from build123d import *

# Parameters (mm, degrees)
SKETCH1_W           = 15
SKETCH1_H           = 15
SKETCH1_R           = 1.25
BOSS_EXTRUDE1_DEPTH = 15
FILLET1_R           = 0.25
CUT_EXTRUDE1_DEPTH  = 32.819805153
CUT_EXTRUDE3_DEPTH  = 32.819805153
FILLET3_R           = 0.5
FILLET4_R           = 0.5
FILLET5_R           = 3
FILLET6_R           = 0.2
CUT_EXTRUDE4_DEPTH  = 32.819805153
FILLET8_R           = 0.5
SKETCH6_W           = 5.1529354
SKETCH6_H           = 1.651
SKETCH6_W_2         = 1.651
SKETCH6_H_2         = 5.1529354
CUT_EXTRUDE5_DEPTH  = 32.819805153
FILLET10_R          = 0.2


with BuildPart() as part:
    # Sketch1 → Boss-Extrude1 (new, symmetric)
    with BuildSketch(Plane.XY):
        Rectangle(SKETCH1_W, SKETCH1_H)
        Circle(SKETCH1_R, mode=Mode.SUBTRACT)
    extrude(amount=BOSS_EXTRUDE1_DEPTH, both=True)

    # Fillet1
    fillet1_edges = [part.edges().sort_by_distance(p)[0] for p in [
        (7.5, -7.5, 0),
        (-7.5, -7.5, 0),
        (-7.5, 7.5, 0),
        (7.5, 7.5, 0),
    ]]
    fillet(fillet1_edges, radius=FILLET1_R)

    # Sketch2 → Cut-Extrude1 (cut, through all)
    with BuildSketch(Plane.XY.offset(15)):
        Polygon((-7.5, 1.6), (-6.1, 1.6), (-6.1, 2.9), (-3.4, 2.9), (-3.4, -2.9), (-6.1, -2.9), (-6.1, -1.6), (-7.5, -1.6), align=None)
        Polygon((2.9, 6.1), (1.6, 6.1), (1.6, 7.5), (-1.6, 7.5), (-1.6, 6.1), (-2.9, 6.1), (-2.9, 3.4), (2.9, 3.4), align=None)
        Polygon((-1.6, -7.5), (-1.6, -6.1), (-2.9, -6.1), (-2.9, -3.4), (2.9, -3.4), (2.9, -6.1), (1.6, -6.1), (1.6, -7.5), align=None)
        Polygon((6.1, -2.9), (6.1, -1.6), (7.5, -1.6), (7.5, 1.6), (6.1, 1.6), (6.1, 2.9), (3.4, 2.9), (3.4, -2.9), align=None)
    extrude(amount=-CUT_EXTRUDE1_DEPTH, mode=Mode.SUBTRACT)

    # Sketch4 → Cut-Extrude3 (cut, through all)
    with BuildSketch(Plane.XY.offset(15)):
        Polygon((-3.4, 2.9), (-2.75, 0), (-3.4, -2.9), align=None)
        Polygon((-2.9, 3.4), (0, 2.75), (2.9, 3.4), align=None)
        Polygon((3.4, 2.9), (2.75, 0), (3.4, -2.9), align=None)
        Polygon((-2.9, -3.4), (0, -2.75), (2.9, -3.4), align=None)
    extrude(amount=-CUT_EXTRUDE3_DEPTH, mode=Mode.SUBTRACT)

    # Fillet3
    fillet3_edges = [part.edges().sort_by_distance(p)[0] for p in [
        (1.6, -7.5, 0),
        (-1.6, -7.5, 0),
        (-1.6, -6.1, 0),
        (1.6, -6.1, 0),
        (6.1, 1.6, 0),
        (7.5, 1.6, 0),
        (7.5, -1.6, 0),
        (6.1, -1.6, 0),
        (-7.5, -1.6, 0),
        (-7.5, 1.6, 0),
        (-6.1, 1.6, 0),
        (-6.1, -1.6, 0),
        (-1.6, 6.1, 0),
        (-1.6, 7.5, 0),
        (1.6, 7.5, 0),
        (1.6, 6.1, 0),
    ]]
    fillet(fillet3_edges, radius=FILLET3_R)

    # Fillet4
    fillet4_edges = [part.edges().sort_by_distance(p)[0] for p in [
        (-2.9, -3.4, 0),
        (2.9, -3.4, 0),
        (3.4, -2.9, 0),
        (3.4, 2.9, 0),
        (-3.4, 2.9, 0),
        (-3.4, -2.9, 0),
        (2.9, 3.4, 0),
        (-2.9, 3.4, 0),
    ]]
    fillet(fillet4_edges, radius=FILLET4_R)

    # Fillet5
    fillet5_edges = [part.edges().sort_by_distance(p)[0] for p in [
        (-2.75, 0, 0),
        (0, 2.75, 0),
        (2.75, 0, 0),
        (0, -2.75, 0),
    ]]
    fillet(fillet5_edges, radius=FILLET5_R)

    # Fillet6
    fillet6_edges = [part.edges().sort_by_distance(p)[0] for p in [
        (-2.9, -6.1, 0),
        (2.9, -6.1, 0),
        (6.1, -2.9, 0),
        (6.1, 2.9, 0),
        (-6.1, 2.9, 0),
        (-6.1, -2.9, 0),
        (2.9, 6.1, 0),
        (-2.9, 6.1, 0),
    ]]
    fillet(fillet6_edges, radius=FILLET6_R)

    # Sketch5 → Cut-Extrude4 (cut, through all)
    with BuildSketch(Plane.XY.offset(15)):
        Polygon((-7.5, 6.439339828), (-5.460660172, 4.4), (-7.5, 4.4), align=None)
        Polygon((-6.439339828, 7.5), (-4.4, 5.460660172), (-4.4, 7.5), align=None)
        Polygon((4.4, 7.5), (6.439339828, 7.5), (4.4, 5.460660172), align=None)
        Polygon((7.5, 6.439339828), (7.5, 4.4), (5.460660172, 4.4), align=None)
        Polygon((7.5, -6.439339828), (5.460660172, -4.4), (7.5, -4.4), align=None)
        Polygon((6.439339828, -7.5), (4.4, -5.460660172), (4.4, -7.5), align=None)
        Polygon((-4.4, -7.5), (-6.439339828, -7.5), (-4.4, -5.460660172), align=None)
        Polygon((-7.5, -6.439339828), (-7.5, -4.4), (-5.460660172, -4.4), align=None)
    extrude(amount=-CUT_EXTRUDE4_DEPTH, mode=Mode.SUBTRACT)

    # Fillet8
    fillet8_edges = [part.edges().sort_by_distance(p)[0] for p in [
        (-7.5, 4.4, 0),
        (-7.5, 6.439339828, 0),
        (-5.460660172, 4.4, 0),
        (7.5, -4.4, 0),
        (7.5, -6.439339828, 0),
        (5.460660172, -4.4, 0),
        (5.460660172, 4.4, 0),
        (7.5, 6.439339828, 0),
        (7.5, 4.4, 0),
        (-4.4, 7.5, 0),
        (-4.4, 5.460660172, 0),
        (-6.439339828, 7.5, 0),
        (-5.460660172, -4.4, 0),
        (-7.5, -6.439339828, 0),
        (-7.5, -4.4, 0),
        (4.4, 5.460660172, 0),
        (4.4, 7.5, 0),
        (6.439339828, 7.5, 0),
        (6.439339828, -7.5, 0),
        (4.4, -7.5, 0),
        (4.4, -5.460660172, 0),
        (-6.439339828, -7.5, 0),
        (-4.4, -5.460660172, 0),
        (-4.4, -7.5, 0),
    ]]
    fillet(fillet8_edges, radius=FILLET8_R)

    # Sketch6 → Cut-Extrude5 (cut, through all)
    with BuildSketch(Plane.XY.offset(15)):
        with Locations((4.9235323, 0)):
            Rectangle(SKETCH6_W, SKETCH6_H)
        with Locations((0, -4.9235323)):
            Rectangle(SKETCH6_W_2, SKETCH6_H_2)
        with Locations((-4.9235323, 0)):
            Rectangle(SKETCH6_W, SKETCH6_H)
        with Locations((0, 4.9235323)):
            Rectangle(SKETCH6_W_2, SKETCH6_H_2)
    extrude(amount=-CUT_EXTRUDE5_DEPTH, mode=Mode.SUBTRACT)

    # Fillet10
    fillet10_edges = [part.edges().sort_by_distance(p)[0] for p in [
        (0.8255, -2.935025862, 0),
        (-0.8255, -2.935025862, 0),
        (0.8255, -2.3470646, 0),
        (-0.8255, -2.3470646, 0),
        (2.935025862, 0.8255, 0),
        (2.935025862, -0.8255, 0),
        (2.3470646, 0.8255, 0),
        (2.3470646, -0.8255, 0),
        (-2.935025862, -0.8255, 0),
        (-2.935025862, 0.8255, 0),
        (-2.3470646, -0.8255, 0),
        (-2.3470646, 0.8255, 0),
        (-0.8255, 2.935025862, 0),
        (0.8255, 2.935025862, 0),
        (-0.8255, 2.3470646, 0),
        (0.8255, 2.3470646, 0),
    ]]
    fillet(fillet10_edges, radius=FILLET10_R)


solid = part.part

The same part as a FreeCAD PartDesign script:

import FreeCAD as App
import Part
import Sketcher


def edges_at(feature, points):
    """Names of the edges that pass closest to the given points."""
    edges = feature.Shape.Edges
    near = lambda p: min(range(len(edges)), key=lambda i: edges[i].distToShape(Part.Vertex(*p))[0])
    return sorted({f"Edge{near(p) + 1}" for p in points})


def add_polygon(sketch, points):
    """Adds a closed chain of lines whose ends are joined by coincident constraints."""
    first, n = sketch.GeometryCount, len(points)
    for a, b in zip(points, points[1:] + points[:1]):
        sketch.addGeometry(Part.LineSegment(App.Vector(*a, 0), App.Vector(*b, 0)), False)
    for i in range(n):
        sketch.addConstraint(Sketcher.Constraint("Coincident", first + i, 2, first + (i + 1) % n, 1))

doc = App.newDocument("Part")
body = doc.addObject("PartDesign::Body", "Body")

# Sketch on XY plane
sketch1 = doc.addObject("Sketcher::SketchObject", "Sketch")
body.addObject(sketch1)
sketch1.AttachmentSupport = (doc.XY_Plane, [""])
sketch1.MapMode = "FlatFace"
add_polygon(sketch1, [(-7.5, 7.5), (-7.5, -7.5), (7.5, -7.5), (7.5, 7.5)])  # lines 0-3
sketch1.addGeometry(Part.Circle(App.Vector(0, 0, 0), App.Vector(0, 0, 1), 1.2), False)  # 4
sketch1.addConstraint([
    Sketcher.Constraint("Vertical", 0),
    Sketcher.Constraint("Horizontal", 1),
    Sketcher.Constraint("Vertical", 2),
    Sketcher.Constraint("Horizontal", 3),
    Sketcher.Constraint("Coincident", 4, 3, -1, 1),
    Sketcher.Constraint("Symmetric", 0, 2, 2, 2, -1, 1),
    Sketcher.Constraint("Equal", 3, 0),
    Sketcher.Constraint("Diameter", 4, 2.5),
    Sketcher.Constraint("DistanceX", 1, 1, 1, 2, 15.0),
])
pad1 = doc.addObject("PartDesign::Pad", "Pad")
body.addObject(pad1)
pad1.Profile = sketch1
pad1.Length = 30
pad1.Midplane = True
doc.recompute()

fillet = doc.addObject("PartDesign::Fillet", "Fillet")
body.addObject(fillet)
fillet.Base = (pad1, edges_at(pad1, [
    (7.5, -7.5, 0),
    (-7.5, -7.5, 0),
    (-7.5, 7.5, 0),
    (7.5, 7.5, 0),
]))
fillet.Radius = 0.25

# Sketch on XY plane
sketch2 = doc.addObject("Sketcher::SketchObject", "Sketch001")
body.addObject(sketch2)
sketch2.AttachmentSupport = (doc.XY_Plane, [""])
sketch2.MapMode = "FlatFace"
sketch2.AttachmentOffset = App.Placement(App.Vector(0, 0, 15), App.Rotation())
add_polygon(sketch2, [(-6.1, 1.6), (-7.5, 1.6), (-7.5, -1.6), (-6.1, -1.6), (-6.1, -2.9), (-3.4, -2.9), (-3.4, 2.9), (-6.1, 2.9)])  # lines 0-7
add_polygon(sketch2, [(2.9, 6.1), (1.6, 6.1), (1.6, 7.5), (-1.6, 7.5), (-1.6, 6.1), (-2.9, 6.1), (-2.9, 3.4), (2.9, 3.4)])  # lines 8-15
add_polygon(sketch2, [(-1.6, -6.1), (-1.6, -7.5), (1.6, -7.5), (1.6, -6.1), (2.9, -6.1), (2.9, -3.4), (-2.9, -3.4), (-2.9, -6.1)])  # lines 16-23
add_polygon(sketch2, [(6.1, -2.9), (6.1, -1.6), (7.5, -1.6), (7.5, 1.6), (6.1, 1.6), (6.1, 2.9), (3.4, 2.9), (3.4, -2.9)])  # lines 24-31
sketch2.addConstraint([
    Sketcher.Constraint("Horizontal", 0),
    Sketcher.Constraint("Vertical", 1),
    Sketcher.Constraint("Horizontal", 2),
    Sketcher.Constraint("Vertical", 3),
    Sketcher.Constraint("Horizontal", 4),
    Sketcher.Constraint("Vertical", 5),
    Sketcher.Constraint("Horizontal", 6),
    Sketcher.Constraint("Vertical", 7),
    Sketcher.Constraint("Horizontal", 8),
    Sketcher.Constraint("Vertical", 9),
    Sketcher.Constraint("Horizontal", 10),
    Sketcher.Constraint("Vertical", 11),
    Sketcher.Constraint("Horizontal", 12),
    Sketcher.Constraint("Vertical", 13),
    Sketcher.Constraint("Horizontal", 14),
    Sketcher.Constraint("Vertical", 15),
    Sketcher.Constraint("Vertical", 16),
    Sketcher.Constraint("Horizontal", 17),
    Sketcher.Constraint("Vertical", 18),
    Sketcher.Constraint("Horizontal", 19),
    Sketcher.Constraint("Vertical", 20),
    Sketcher.Constraint("Horizontal", 21),
    Sketcher.Constraint("Vertical", 22),
    Sketcher.Constraint("Horizontal", 23),
    Sketcher.Constraint("Vertical", 24),
    Sketcher.Constraint("Horizontal", 25),
    Sketcher.Constraint("Vertical", 26),
    Sketcher.Constraint("Horizontal", 27),
    Sketcher.Constraint("Vertical", 28),
    Sketcher.Constraint("Horizontal", 29),
    Sketcher.Constraint("Vertical", 30),
    Sketcher.Constraint("Horizontal", 31),
    Sketcher.Constraint("Symmetric", 9, 2, 16, 2, -1, 1),
    Sketcher.Constraint("Symmetric", 11, 2, 18, 2, -1, 1),
    Sketcher.Constraint("Symmetric", 13, 2, 20, 2, -1, 1),
    Sketcher.Constraint("Symmetric", 15, 2, 22, 2, -1, 1),
    Sketcher.Constraint("Symmetric", 7, 2, 24, 2, -1, 1),
    Sketcher.Constraint("Symmetric", 1, 2, 26, 2, -1, 1),
    Sketcher.Constraint("Symmetric", 3, 2, 28, 2, -1, 1),
    Sketcher.Constraint("Symmetric", 5, 2, 30, 2, -1, 1),
    Sketcher.Constraint("Symmetric", 8, 2, 11, 2, -2),
    Sketcher.Constraint("Symmetric", 2, 2, 24, 2, -2),
    Sketcher.Constraint("Horizontal", 6, 2, 28, 2),
    Sketcher.Constraint("Vertical", 15, 2, 19, 2),
    Sketcher.Constraint("Equal", 17, 1),
    Sketcher.Constraint("Equal", 23, 3),
    Sketcher.Constraint("Equal", 27, 9),
    Sketcher.Constraint("Equal", 31, 13),
    Sketcher.Constraint("DistanceX", 0, 2, 0, 1, 1.4),
    Sketcher.Constraint("DistanceX", 4, 1, 4, 2, 2.7),
    Sketcher.Constraint("DistanceX", 8, 2, 8, 1, 1.3),
    Sketcher.Constraint("DistanceX", 10, 2, 10, 1, 3.2),
    Sketcher.Constraint("DistanceX", 5, 2, 8, 2, 5.0),
    Sketcher.Constraint("DistanceY", 4, 2, 8, 2, 9.0),
])
pocket1 = doc.addObject("PartDesign::Pocket", "Pocket")
body.addObject(pocket1)
pocket1.Profile = sketch2
pocket1.Type = "ThroughAll"

# Sketch on XY plane
sketch3 = doc.addObject("Sketcher::SketchObject", "Sketch002")
body.addObject(sketch3)
sketch3.AttachmentSupport = (doc.XY_Plane, [""])
sketch3.MapMode = "FlatFace"
sketch3.AttachmentOffset = App.Placement(App.Vector(0, 0, 15), App.Rotation())
add_polygon(sketch3, [(-2.8, 0), (-3.4, 2.9), (-3.4, -2.9)])  # lines 0-2
add_polygon(sketch3, [(-2.9, 3.4), (0, 2.8), (2.9, 3.4)])  # lines 3-5
add_polygon(sketch3, [(3.4, 2.9), (2.8, 0), (3.4, -2.9)])  # lines 6-8
add_polygon(sketch3, [(0, -2.8), (-2.9, -3.4), (2.9, -3.4)])  # lines 9-11
sketch3.addConstraint([
    Sketcher.Constraint("Vertical", 1),
    Sketcher.Constraint("Horizontal", 5),
    Sketcher.Constraint("Vertical", 8),
    Sketcher.Constraint("Horizontal", 10),
    Sketcher.Constraint("Symmetric", 2, 2, 6, 2, -1, 1),
    Sketcher.Constraint("Symmetric", 0, 2, 7, 2, -1, 1),
    Sketcher.Constraint("Symmetric", 4, 2, 9, 2, -1, 1),
    Sketcher.Constraint("Symmetric", 3, 2, 11, 2, -1, 1),
    Sketcher.Constraint("PointOnObject", 2, 2, -1),
    Sketcher.Constraint("PointOnObject", 3, 2, -2),
    Sketcher.Constraint("Perpendicular", 2, 3),
    Sketcher.Constraint("Perpendicular", 0, 4),
    Sketcher.Constraint("Perpendicular", 3, 6),
    Sketcher.Constraint("Perpendicular", 6, 11),
    Sketcher.Constraint("Horizontal", 1, 2, 7, 2),
    Sketcher.Constraint("Equal", 10, 1),
    Sketcher.Constraint("DistanceX", 5, 2, 5, 1, 5.8),
    Sketcher.Constraint("DistanceX", 0, 2, -1, 1, 3.4),
    Sketcher.Constraint("DistanceY", -1, 1, 4, 2, 3.4),
    Sketcher.Constraint("DistanceX", 2, 2, 6, 2, 5.5),
])
pocket2 = doc.addObject("PartDesign::Pocket", "Pocket001")
body.addObject(pocket2)
pocket2.Profile = sketch3
pocket2.Type = "ThroughAll"
doc.recompute()

fillet2 = doc.addObject("PartDesign::Fillet", "Fillet001")
body.addObject(fillet2)
fillet2.Base = (pocket2, edges_at(pocket2, [
    (1.6, -7.5, 0),
    (-1.6, -7.5, 0),
    (-1.6, -6.1, 0),
    (1.6, -6.1, 0),
    (6.1, 1.6, 0),
    (7.5, 1.6, 0),
    (7.5, -1.6, 0),
    (6.1, -1.6, 0),
    (-7.5, -1.6, 0),
    (-7.5, 1.6, 0),
    (-6.1, 1.6, 0),
    (-6.1, -1.6, 0),
    (-1.6, 6.1, 0),
    (-1.6, 7.5, 0),
    (1.6, 7.5, 0),
    (1.6, 6.1, 0),
]))
fillet2.Radius = 0.5
doc.recompute()

fillet3 = doc.addObject("PartDesign::Fillet", "Fillet002")
body.addObject(fillet3)
fillet3.Base = (fillet2, edges_at(fillet2, [
    (-2.9, -3.4, 0),
    (2.9, -3.4, 0),
    (3.4, -2.9, 0),
    (3.4, 2.9, 0),
    (-3.4, 2.9, 0),
    (-3.4, -2.9, 0),
    (2.9, 3.4, 0),
    (-2.9, 3.4, 0),
]))
fillet3.Radius = 0.5
doc.recompute()

fillet4 = doc.addObject("PartDesign::Fillet", "Fillet003")
body.addObject(fillet4)
fillet4.Base = (fillet3, edges_at(fillet3, [
    (-2.75, 0, 0),
    (0, 2.75, 0),
    (2.75, 0, 0),
    (0, -2.75, 0),
]))
fillet4.Radius = 3
doc.recompute()

fillet5 = doc.addObject("PartDesign::Fillet", "Fillet004")
body.addObject(fillet5)
fillet5.Base = (fillet4, edges_at(fillet4, [
    (-2.9, -6.1, 0),
    (2.9, -6.1, 0),
    (6.1, -2.9, 0),
    (6.1, 2.9, 0),
    (-6.1, 2.9, 0),
    (-6.1, -2.9, 0),
    (2.9, 6.1, 0),
    (-2.9, 6.1, 0),
]))
fillet5.Radius = 0.2

# Sketch on XY plane
sketch4 = doc.addObject("Sketcher::SketchObject", "Sketch003")
body.addObject(sketch4)
sketch4.AttachmentSupport = (doc.XY_Plane, [""])
sketch4.MapMode = "FlatFace"
sketch4.AttachmentOffset = App.Placement(App.Vector(0, 0, 15), App.Rotation())
add_polygon(sketch4, [(-5.5, 4.4), (-7.5, 6.4), (-7.5, 4.4)])  # lines 0-2
add_polygon(sketch4, [(-6.4, 7.5), (-4.4, 5.5), (-4.4, 7.5)])  # lines 3-5
add_polygon(sketch4, [(6.4, 7.5), (4.4, 7.5), (4.4, 5.5)])  # lines 6-8
add_polygon(sketch4, [(7.5, 4.4), (7.5, 6.4), (5.5, 4.4)])  # lines 9-11
add_polygon(sketch4, [(5.5, -4.4), (7.5, -6.4), (7.5, -4.4)])  # lines 12-14
add_polygon(sketch4, [(6.4, -7.5), (4.4, -5.5), (4.4, -7.5)])  # lines 15-17
add_polygon(sketch4, [(-6.4, -7.5), (-4.4, -7.5), (-4.4, -5.5)])  # lines 18-20
add_polygon(sketch4, [(-7.5, -4.4), (-7.5, -6.4), (-5.5, -4.4)])  # lines 21-23
sketch4.addConstraint([
    Sketcher.Constraint("Vertical", 1),
    Sketcher.Constraint("Horizontal", 2),
    Sketcher.Constraint("Vertical", 4),
    Sketcher.Constraint("Horizontal", 5),
    Sketcher.Constraint("Horizontal", 6),
    Sketcher.Constraint("Vertical", 7),
    Sketcher.Constraint("Vertical", 9),
    Sketcher.Constraint("Horizontal", 11),
    Sketcher.Constraint("Vertical", 13),
    Sketcher.Constraint("Horizontal", 14),
    Sketcher.Constraint("Vertical", 16),
    Sketcher.Constraint("Horizontal", 17),
    Sketcher.Constraint("Horizontal", 18),
    Sketcher.Constraint("Vertical", 19),
    Sketcher.Constraint("Vertical", 21),
    Sketcher.Constraint("Horizontal", 23),
    Sketcher.Constraint("Symmetric", 0, 2, 12, 2, -1, 1),
    Sketcher.Constraint("Symmetric", 2, 2, 14, 2, -1, 1),
    Sketcher.Constraint("Symmetric", 3, 2, 15, 2, -1, 1),
    Sketcher.Constraint("Symmetric", 5, 2, 17, 2, -1, 1),
    Sketcher.Constraint("Symmetric", 6, 2, 18, 2, -1, 1),
    Sketcher.Constraint("Symmetric", 9, 2, 21, 2, -1, 1),
    Sketcher.Constraint("Symmetric", 10, 2, 22, 2, -1, 1),
    Sketcher.Constraint("Symmetric", 4, 2, 6, 2, -2),
    Sketcher.Constraint("Symmetric", 0, 2, 9, 2, -2),
    Sketcher.Constraint("Symmetric", 2, 2, 10, 2, -2),
    Sketcher.Constraint("Parallel", 0, 3),
    Sketcher.Constraint("Perpendicular", 3, 8),
    Sketcher.Constraint("Parallel", 8, 10),
    Sketcher.Constraint("Perpendicular", 15, 20),
    Sketcher.Constraint("Horizontal", 3, 2, 7, 2),
    Sketcher.Constraint("Horizontal", 15, 2, 19, 2),
    Sketcher.Constraint("Equal", 2, 5),
    Sketcher.Constraint("DistanceX", 0, 2, -1, 1, 7.5),
    Sketcher.Constraint("DistanceY", -1, 1, 1, 2, 4.4),
    Sketcher.Constraint("DistanceX", 3, 2, -1, 1, 4.4),
    Sketcher.Constraint("DistanceY", -1, 1, 4, 2, 7.5),
    Sketcher.Constraint("DistanceX", 2, 1, 2, 2, 2.03934),
])
pocket3 = doc.addObject("PartDesign::Pocket", "Pocket002")
body.addObject(pocket3)
pocket3.Profile = sketch4
pocket3.Type = "ThroughAll"
doc.recompute()

fillet6 = doc.addObject("PartDesign::Fillet", "Fillet005")
body.addObject(fillet6)
fillet6.Base = (pocket3, edges_at(pocket3, [
    (-7.5, 4.4, 0),
    (-7.5, 6.439, 0),
    (-5.461, 4.4, 0),
    (7.5, -4.4, 0),
    (7.5, -6.439, 0),
    (5.461, -4.4, 0),
    (5.461, 4.4, 0),
    (7.5, 6.439, 0),
    (7.5, 4.4, 0),
    (-4.4, 7.5, 0),
    (-4.4, 5.461, 0),
    (-6.439, 7.5, 0),
    (-5.461, -4.4, 0),
    (-7.5, -6.439, 0),
    (-7.5, -4.4, 0),
    (4.4, 5.461, 0),
    (4.4, 7.5, 0),
    (6.439, 7.5, 0),
    (6.439, -7.5, 0),
    (4.4, -7.5, 0),
    (4.4, -5.461, 0),
    (-6.439, -7.5, 0),
    (-4.4, -5.461, 0),
    (-4.4, -7.5, 0),
]))
fillet6.Radius = 0.5

# Sketch on XY plane
sketch5 = doc.addObject("Sketcher::SketchObject", "Sketch004")
body.addObject(sketch5)
sketch5.AttachmentSupport = (doc.XY_Plane, [""])
sketch5.MapMode = "FlatFace"
sketch5.AttachmentOffset = App.Placement(App.Vector(0, 0, 15), App.Rotation())
add_polygon(sketch5, [(2.3, 0.8), (2.3, -0.8), (7.5, -0.8), (7.5, 0.8)])  # lines 0-3
add_polygon(sketch5, [(-0.8, -2.3), (-0.8, -7.5), (0.8, -7.5), (0.8, -2.3)])  # lines 4-7
add_polygon(sketch5, [(-7.5, 0.8), (-7.5, -0.8), (-2.3, -0.8), (-2.3, 0.8)])  # lines 8-11
add_polygon(sketch5, [(-0.8, 7.5), (-0.8, 2.3), (0.8, 2.3), (0.8, 7.5)])  # lines 12-15
sketch5.addConstraint([
    Sketcher.Constraint("Vertical", 0),
    Sketcher.Constraint("Horizontal", 1),
    Sketcher.Constraint("Vertical", 2),
    Sketcher.Constraint("Horizontal", 3),
    Sketcher.Constraint("Vertical", 4),
    Sketcher.Constraint("Horizontal", 5),
    Sketcher.Constraint("Vertical", 6),
    Sketcher.Constraint("Horizontal", 7),
    Sketcher.Constraint("Vertical", 8),
    Sketcher.Constraint("Horizontal", 9),
    Sketcher.Constraint("Vertical", 10),
    Sketcher.Constraint("Horizontal", 11),
    Sketcher.Constraint("Vertical", 12),
    Sketcher.Constraint("Horizontal", 13),
    Sketcher.Constraint("Vertical", 14),
    Sketcher.Constraint("Horizontal", 15),
    Sketcher.Constraint("Symmetric", 2, 2, 8, 2, -1, 1),
    Sketcher.Constraint("Symmetric", 0, 2, 10, 2, -1, 1),
    Sketcher.Constraint("Symmetric", 6, 2, 12, 2, -1, 1),
    Sketcher.Constraint("Symmetric", 4, 2, 14, 2, -1, 1),
    Sketcher.Constraint("Horizontal", 1, 2, 8, 2),
    Sketcher.Constraint("Vertical", 7, 2, 12, 2),
    Sketcher.Constraint("Equal", 15, 0),
    Sketcher.Constraint("Equal", 11, 4),
    Sketcher.Constraint("DistanceX", -1, 1, 1, 2, 7.5),
    Sketcher.Constraint("DistanceY", 4, 2, -1, 1, 7.5),
    Sketcher.Constraint("DistanceX", 5, 1, 5, 2, 1.651),
    Sketcher.Constraint("DistanceX", 1, 1, 1, 2, 5.152935),
])
pocket4 = doc.addObject("PartDesign::Pocket", "Pocket003")
body.addObject(pocket4)
pocket4.Profile = sketch5
pocket4.Type = "ThroughAll"
doc.recompute()

fillet7 = doc.addObject("PartDesign::Fillet", "Fillet006")
body.addObject(fillet7)
fillet7.Base = (pocket4, edges_at(pocket4, [
    (0.826, -2.935, 0),
    (-0.826, -2.935, 0),
    (0.826, -2.347, 0),
    (-0.826, -2.347, 0),
    (2.935, 0.826, 0),
    (2.935, -0.826, 0),
    (2.347, 0.826, 0),
    (2.347, -0.826, 0),
    (-2.935, -0.826, 0),
    (-2.935, 0.826, 0),
    (-2.347, -0.826, 0),
    (-2.347, 0.826, 0),
    (-0.826, 2.935, 0),
    (0.826, 2.935, 0),
    (-0.826, 2.347, 0),
    (0.826, 2.347, 0),
]))
fillet7.Radius = 0.2

doc.recompute()
